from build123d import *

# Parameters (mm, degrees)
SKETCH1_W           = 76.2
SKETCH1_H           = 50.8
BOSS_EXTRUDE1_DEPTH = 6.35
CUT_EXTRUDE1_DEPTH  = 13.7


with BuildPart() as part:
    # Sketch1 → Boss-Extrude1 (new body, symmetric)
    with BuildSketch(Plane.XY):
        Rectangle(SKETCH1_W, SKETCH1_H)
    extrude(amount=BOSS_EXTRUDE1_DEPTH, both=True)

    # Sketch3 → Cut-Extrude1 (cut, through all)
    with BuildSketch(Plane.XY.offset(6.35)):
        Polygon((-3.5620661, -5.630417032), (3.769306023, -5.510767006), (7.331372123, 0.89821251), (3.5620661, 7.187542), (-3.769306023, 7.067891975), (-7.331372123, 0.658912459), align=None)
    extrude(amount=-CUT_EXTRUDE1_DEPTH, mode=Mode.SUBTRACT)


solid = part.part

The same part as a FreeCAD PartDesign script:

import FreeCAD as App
import Part
import Sketcher
from FreeCAD import Vector
Q = App.Units.Quantity

doc = App.newDocument("Part")
params = doc.addObject("Spreadsheet::Sheet", "Params")
for row, (alias, value) in enumerate([
    ("sketch1_width", "3 in"),
    ("sketch1_height", "2 in"),
    ("pad1_length", "0.5 in"),
], start=1):
    params.set(f"A{row}", alias)
    params.set(f"B{row}", "=" + value)
    params.setAlias(f"B{row}", alias)

body = doc.addObject("PartDesign::Body", "Body")

# Sketch on XY plane
sketch1 = body.newObject("Sketcher::SketchObject", "Sketch")
sketch1.AttachmentSupport = (doc.getObject("XY_Plane"), [""])
sketch1.MapMode = "FlatFace"
sketch1.addGeometry([
    Part.LineSegment(Vector(-38.1, 25.4, 0), Vector(-38.1, -25.4, 0)),
    Part.LineSegment(Vector(-38.1, -25.4, 0), Vector(38.1, -25.4, 0)),
    Part.LineSegment(Vector(38.1, -25.4, 0), Vector(38.1, 25.4, 0)),
    Part.LineSegment(Vector(38.1, 25.4, 0), Vector(-38.1, 25.4, 0)),
], False)
sketch1.addConstraint([
    Sketcher.Constraint("Coincident", 0, 2, 1, 1),
    Sketcher.Constraint("Coincident", 1, 2, 2, 1),
    Sketcher.Constraint("Coincident", 2, 2, 3, 1),
    Sketcher.Constraint("Coincident", 3, 2, 0, 1),
    Sketcher.Constraint("Vertical", 0),
    Sketcher.Constraint("Horizontal", 1),
    Sketcher.Constraint("Vertical", 2),
    Sketcher.Constraint("Horizontal", 3),
    Sketcher.Constraint("Symmetric", 0, 2, 2, 2, -1, 1),
    Sketcher.Constraint("DistanceX", 1, 1, 1, 2, Q("3 in")),
    Sketcher.Constraint("DistanceY", 0, 2, 0, 1, Q("2 in")),
])
sketch1.setExpression("Constraints[9]", "Params.sketch1_width")
sketch1.setExpression("Constraints[10]", "Params.sketch1_height")
pad1 = body.newObject("PartDesign::Pad", "Pad")
pad1.Profile = sketch1
pad1.setExpression("Length", "Params.pad1_length")
pad1.Midplane = True

# Sketch on XY plane
sketch2 = body.newObject("Sketcher::SketchObject", "Sketch001")
sketch2.AttachmentSupport = (doc.getObject("XY_Plane"), [""])
sketch2.MapMode = "FlatFace"
sketch2.AttachmentOffset = App.Placement(Vector(0, 0, 0.25 * 25.4), App.Rotation())
sketch2.addGeometry([
    Part.LineSegment(Vector(-3.562066, -5.630417, 0), Vector(3.769306, -5.510767, 0)),  # 0
    Part.LineSegment(Vector(3.769306, -5.510767, 0), Vector(7.331372, 0.898213, 0)),  # 1
    Part.LineSegment(Vector(7.331372, 0.898213, 0), Vector(3.562066, 7.187542, 0)),  # 2
    Part.LineSegment(Vector(3.562066, 7.187542, 0), Vector(-3.769306, 7.067892, 0)),  # 3
    Part.LineSegment(Vector(-3.769306, 7.067892, 0), Vector(-7.331372, 0.658912, 0)),  # 4
    Part.LineSegment(Vector(-7.331372, 0.658912, 0), Vector(-3.562066, -5.630417, 0)),  # 5
], False)
sketch2.addConstraint([
    Sketcher.Constraint("Coincident", 0, 2, 1, 1),
    Sketcher.Constraint("Coincident", 1, 2, 2, 1),
    Sketcher.Constraint("Coincident", 2, 2, 3, 1),
    Sketcher.Constraint("Coincident", 3, 2, 4, 1),
    Sketcher.Constraint("Coincident", 4, 2, 5, 1),
    Sketcher.Constraint("Coincident", 5, 2, 0, 1),
    Sketcher.Constraint("Parallel", 0, 3),
    Sketcher.Constraint("Parallel", 1, 4),
    Sketcher.Constraint("Parallel", 2, 5),
    Sketcher.Constraint("Equal", 0, 1),
    Sketcher.Constraint("Equal", 1, 2),
    Sketcher.Constraint("Equal", 2, 3),
    Sketcher.Constraint("DistanceY", 4, 2, 1, 2, 0.2393),
    Sketcher.Constraint("Distance", 0, 7.332348),
    Sketcher.Constraint("DistanceY", -1, 1, 2, 2, 7.187542),
    Sketcher.Constraint("DistanceY", -1, 1, 3, 2, 7.067892),
    Sketcher.Constraint("DistanceY", 0, 2, 1, 2, 6.40898),
    Sketcher.Constraint("DistanceX", -1, 1, 0, 2, 3.769306),
])
pocket1 = body.newObject("PartDesign::Pocket", "Pocket")
pocket1.Profile = sketch2
pocket1.Type = "ThroughAll"

doc.recompute()
